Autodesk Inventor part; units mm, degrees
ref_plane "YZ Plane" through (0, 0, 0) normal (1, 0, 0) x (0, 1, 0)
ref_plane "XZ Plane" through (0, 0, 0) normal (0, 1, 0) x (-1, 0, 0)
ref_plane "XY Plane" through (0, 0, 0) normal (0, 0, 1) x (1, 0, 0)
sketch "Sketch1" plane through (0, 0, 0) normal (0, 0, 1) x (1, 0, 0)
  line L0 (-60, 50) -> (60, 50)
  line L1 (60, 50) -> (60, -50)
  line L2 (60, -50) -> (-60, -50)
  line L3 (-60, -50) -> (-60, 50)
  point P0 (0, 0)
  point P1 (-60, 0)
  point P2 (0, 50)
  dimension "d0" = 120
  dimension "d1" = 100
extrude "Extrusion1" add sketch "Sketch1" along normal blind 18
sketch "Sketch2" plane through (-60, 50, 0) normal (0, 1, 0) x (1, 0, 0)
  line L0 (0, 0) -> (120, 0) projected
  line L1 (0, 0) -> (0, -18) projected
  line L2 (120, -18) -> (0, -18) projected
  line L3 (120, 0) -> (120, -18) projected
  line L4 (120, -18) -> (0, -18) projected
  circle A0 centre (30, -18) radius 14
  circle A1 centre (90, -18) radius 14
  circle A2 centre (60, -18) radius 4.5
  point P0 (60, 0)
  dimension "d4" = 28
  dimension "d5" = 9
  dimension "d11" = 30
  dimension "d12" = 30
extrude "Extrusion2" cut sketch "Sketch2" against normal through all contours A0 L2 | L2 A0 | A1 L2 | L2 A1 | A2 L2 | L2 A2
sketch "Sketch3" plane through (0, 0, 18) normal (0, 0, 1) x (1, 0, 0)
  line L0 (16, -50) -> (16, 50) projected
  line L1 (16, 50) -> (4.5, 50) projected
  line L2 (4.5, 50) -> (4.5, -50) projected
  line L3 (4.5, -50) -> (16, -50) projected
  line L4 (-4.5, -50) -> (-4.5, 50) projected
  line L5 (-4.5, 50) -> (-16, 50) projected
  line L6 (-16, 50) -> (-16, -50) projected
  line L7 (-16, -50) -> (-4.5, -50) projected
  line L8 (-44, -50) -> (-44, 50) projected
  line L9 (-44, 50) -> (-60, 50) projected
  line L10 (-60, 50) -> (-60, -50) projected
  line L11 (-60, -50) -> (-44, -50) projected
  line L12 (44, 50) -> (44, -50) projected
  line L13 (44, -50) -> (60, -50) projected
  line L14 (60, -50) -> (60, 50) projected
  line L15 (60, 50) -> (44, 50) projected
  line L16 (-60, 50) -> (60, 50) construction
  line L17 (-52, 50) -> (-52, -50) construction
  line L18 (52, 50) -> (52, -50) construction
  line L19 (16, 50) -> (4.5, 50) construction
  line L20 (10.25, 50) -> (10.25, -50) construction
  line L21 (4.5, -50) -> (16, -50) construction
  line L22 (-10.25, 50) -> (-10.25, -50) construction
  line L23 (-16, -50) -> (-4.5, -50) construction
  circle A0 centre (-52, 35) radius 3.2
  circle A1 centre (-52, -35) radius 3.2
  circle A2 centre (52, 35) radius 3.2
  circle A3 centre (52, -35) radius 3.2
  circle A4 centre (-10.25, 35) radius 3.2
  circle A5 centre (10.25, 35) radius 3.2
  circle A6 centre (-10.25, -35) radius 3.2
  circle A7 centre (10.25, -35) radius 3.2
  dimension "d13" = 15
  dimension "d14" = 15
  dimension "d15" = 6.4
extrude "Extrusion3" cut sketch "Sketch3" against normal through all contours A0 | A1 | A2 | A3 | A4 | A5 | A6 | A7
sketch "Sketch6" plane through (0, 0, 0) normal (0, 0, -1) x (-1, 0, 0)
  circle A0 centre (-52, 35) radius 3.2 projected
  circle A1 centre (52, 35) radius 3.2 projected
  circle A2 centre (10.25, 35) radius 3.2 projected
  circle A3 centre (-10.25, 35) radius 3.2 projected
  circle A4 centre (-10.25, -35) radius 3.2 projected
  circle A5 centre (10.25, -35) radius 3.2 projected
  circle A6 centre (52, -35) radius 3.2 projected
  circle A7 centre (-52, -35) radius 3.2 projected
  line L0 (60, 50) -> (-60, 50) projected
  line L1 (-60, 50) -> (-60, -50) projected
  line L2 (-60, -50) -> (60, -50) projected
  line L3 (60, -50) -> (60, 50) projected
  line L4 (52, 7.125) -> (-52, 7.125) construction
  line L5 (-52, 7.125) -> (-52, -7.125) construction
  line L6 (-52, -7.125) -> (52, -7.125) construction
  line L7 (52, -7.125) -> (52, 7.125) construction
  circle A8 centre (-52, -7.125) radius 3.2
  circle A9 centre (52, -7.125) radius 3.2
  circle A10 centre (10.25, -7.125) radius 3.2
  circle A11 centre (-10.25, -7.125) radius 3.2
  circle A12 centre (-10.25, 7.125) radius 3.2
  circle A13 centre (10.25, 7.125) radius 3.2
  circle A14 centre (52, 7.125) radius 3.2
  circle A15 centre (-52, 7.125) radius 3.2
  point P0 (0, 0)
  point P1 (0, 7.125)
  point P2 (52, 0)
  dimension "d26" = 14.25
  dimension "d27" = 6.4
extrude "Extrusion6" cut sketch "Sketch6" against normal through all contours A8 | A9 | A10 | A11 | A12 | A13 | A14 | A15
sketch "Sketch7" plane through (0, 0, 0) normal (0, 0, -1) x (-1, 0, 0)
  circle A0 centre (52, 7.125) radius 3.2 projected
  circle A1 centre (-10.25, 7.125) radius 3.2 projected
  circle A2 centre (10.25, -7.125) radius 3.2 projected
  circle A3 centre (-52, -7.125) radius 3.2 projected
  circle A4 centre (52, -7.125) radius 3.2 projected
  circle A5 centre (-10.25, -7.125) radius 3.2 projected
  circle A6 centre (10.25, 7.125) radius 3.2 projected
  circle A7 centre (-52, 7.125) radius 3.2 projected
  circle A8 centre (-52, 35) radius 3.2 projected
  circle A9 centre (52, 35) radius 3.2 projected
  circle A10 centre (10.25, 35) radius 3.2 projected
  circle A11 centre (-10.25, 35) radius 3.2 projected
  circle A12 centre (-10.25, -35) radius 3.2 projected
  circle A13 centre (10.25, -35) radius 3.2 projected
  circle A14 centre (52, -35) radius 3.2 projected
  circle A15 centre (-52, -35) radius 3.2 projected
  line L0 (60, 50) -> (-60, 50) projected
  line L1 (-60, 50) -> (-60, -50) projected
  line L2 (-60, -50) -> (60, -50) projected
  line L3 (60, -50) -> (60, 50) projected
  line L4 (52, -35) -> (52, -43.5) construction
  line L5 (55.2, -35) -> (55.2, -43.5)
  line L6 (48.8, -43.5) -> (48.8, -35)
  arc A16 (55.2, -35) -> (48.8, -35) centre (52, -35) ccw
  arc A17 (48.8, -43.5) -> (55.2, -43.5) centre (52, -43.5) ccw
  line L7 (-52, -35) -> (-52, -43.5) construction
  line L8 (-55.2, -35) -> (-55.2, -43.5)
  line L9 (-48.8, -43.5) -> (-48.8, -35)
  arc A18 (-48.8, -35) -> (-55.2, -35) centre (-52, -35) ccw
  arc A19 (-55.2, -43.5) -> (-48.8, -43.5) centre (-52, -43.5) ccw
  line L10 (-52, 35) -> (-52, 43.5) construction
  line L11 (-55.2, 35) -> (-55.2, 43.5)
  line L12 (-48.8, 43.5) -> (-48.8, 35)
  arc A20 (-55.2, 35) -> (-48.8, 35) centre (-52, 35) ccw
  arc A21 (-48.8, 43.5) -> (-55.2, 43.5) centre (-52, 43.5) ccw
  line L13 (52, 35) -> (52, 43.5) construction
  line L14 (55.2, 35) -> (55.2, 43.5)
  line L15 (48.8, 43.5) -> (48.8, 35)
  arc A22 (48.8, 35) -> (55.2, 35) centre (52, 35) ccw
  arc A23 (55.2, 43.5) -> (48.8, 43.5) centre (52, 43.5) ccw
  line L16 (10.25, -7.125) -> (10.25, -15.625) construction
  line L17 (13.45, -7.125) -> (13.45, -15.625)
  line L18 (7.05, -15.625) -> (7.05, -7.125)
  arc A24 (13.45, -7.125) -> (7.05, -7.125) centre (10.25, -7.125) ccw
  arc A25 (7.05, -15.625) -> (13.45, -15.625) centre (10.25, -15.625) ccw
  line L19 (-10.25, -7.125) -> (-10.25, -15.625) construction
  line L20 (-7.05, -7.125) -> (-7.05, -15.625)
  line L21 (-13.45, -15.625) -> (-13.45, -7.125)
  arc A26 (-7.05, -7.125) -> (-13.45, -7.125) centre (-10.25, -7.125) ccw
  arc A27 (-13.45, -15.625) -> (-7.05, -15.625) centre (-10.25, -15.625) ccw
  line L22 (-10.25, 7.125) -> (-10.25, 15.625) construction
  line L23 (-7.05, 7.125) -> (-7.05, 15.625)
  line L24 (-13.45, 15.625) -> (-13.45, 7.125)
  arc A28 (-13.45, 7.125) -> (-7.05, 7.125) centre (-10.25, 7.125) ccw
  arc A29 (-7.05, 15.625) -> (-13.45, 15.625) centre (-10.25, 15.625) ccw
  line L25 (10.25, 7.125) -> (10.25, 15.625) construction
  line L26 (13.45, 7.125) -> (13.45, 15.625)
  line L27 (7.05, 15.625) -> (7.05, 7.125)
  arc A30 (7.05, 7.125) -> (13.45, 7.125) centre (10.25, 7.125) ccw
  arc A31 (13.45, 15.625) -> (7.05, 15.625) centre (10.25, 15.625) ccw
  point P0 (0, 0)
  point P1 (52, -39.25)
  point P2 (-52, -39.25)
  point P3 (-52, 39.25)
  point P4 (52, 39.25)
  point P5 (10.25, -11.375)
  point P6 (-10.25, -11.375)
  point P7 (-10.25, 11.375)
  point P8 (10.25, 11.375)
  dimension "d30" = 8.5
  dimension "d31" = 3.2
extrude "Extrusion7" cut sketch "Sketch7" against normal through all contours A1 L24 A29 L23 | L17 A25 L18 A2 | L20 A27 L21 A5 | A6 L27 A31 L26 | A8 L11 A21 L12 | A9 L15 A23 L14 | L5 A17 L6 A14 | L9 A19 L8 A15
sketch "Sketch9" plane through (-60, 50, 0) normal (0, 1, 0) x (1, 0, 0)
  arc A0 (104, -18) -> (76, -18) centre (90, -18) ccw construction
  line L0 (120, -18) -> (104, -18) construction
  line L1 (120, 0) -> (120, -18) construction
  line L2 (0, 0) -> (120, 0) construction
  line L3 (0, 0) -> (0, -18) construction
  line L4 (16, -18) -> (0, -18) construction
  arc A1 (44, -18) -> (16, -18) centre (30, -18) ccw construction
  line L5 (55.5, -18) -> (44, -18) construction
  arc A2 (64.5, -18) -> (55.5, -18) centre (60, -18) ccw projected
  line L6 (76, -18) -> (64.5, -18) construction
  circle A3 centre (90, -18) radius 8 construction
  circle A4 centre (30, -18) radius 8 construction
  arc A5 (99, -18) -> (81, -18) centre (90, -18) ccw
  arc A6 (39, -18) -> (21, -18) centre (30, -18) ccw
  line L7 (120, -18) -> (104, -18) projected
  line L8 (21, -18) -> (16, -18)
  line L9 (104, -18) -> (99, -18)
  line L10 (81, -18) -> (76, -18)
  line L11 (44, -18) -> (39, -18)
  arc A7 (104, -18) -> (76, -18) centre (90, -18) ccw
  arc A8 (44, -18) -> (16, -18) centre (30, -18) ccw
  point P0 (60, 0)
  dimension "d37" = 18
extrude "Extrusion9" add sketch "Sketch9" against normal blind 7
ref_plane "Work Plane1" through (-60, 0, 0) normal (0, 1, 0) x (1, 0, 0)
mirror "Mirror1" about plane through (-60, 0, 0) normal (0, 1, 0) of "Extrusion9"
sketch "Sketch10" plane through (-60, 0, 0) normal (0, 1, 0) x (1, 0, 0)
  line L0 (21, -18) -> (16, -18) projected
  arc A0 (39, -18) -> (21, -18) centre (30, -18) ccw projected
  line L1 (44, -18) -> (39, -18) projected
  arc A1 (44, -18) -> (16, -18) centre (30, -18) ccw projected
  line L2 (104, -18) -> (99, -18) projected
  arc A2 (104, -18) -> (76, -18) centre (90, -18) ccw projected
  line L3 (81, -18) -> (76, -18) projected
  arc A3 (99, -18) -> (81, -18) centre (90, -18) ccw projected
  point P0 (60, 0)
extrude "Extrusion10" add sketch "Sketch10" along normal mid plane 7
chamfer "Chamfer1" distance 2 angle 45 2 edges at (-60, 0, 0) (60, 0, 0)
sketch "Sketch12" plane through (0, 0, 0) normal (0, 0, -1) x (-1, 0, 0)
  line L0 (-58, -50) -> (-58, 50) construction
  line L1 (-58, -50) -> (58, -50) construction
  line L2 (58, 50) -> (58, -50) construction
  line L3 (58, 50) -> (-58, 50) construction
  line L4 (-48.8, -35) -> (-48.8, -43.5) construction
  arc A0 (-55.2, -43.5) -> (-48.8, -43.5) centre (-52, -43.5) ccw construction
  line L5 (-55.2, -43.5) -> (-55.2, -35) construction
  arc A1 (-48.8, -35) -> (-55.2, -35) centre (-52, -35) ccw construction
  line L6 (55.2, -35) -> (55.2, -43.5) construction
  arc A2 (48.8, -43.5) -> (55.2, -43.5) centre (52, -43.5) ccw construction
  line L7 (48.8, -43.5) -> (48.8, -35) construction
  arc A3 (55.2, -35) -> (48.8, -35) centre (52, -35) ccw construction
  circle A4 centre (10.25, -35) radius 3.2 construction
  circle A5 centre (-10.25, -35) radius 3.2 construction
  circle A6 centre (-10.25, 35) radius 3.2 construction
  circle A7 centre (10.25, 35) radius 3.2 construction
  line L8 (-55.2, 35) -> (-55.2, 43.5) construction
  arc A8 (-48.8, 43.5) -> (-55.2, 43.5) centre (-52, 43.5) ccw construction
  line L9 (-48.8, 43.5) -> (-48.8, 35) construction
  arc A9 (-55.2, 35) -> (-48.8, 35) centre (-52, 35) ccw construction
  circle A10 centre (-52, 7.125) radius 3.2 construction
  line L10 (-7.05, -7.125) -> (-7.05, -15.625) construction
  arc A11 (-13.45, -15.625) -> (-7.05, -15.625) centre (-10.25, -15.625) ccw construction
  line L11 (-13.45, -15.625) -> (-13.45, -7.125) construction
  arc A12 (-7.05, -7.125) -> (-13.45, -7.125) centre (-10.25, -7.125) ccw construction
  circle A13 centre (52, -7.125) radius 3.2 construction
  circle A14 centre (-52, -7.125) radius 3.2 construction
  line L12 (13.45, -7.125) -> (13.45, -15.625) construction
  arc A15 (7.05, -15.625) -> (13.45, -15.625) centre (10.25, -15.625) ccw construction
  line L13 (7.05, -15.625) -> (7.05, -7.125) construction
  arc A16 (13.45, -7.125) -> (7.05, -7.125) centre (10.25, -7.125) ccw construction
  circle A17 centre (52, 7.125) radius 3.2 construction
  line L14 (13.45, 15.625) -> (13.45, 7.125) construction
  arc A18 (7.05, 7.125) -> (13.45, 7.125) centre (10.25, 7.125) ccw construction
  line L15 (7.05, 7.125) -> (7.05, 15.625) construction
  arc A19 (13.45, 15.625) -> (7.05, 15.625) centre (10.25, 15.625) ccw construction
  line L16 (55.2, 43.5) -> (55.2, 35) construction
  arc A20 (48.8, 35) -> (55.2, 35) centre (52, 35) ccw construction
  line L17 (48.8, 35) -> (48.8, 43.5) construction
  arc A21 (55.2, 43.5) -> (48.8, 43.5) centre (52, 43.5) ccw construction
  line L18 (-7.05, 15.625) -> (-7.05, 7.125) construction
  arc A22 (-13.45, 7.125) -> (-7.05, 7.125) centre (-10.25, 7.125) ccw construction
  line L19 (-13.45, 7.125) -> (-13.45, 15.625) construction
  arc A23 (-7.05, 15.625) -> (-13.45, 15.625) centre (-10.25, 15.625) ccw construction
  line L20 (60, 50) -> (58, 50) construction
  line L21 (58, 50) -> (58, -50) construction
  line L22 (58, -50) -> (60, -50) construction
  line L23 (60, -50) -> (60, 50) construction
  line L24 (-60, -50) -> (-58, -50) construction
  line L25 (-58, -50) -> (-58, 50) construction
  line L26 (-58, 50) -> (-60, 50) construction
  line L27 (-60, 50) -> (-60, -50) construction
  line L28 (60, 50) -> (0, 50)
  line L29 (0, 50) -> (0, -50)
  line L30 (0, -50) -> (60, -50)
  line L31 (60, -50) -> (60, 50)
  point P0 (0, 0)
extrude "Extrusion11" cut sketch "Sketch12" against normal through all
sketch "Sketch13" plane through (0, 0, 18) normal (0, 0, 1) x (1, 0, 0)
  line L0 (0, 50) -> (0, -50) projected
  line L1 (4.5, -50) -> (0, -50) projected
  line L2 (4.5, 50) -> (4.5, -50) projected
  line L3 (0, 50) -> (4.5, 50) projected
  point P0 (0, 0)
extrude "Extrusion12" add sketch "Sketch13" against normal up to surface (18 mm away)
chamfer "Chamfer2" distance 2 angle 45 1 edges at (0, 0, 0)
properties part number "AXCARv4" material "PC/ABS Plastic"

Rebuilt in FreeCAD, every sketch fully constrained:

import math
import FreeCAD as App
import Part
import Sketcher


def edges_at(feature, points):
    """Names of the edges that pass closest to the given points."""
    edges = feature.Shape.Edges
    near = lambda p: min(range(len(edges)), key=lambda i: edges[i].distToShape(Part.Vertex(*p))[0])
    return sorted({f"Edge{near(p) + 1}" for p in points})


def add_polygon(sketch, points):
    """Adds a closed chain of lines whose ends are joined by coincident constraints."""
    first, n = sketch.GeometryCount, len(points)
    for a, b in zip(points, points[1:] + points[:1]):
        sketch.addGeometry(Part.LineSegment(App.Vector(*a, 0), App.Vector(*b, 0)), False)
    for i in range(n):
        sketch.addConstraint(Sketcher.Constraint("Coincident", first + i, 2, first + (i + 1) % n, 1))

doc = App.newDocument("Part")
body = doc.addObject("PartDesign::Body", "Body")

# Sketch on XY plane
sketch1 = body.newObject("Sketcher::SketchObject", "Sketch")
sketch1.AttachmentSupport = (doc.getObject("XY_Plane"), [""])
sketch1.MapMode = "FlatFace"
add_polygon(sketch1, [(60, 50), (-60, 50), (-60, -50), (60, -50)])  # lines 0-3
sketch1.addConstraint(Sketcher.Constraint("Horizontal", 0))
sketch1.addConstraint(Sketcher.Constraint("Vertical", 1))
sketch1.addConstraint(Sketcher.Constraint("Horizontal", 2))
sketch1.addConstraint(Sketcher.Constraint("Vertical", 3))
sketch1.addConstraint(Sketcher.Constraint("Symmetric", 0, 2, 2, 2, -1, 1))
sketch1.addConstraint(Sketcher.Constraint("DistanceX", 0, 2, 0, 1, 120.0))
sketch1.addConstraint(Sketcher.Constraint("DistanceY", 1, 2, 1, 1, 100.0))
pad1 = body.newObject("PartDesign::Pad", "Pad")
pad1.Profile = sketch1
pad1.Length = 18

# Sketch on XZ plane
sketch2 = body.newObject("Sketcher::SketchObject", "Sketch001")
sketch2.AttachmentSupport = (doc.getObject("XZ_Plane"), [""])
sketch2.MapMode = "FlatFace"
sketch2.AttachmentOffset = App.Placement(App.Vector(0, 0, -50), App.Rotation())
sketch2.addGeometry(Part.Circle(App.Vector(-30, 18, 0), App.Vector(0, 0, 1), 14), False)
sketch2.addGeometry(Part.Circle(App.Vector(30, 18, 0), App.Vector(0, 0, 1), 14), False)
sketch2.addGeometry(Part.Circle(App.Vector(0, 18, 0), App.Vector(0, 0, 1), 4.5), False)
sketch2.addConstraint(Sketcher.Constraint("Equal", 0, 1))
sketch2.addConstraint(Sketcher.Constraint("Symmetric", 0, 3, 1, 3, -2))
sketch2.addConstraint(Sketcher.Constraint("PointOnObject", 2, 3, -2))
sketch2.addConstraint(Sketcher.Constraint("Horizontal", 1, 3, 2, 3))
sketch2.addConstraint(Sketcher.Constraint("Diameter", 0, 28.0))
sketch2.addConstraint(Sketcher.Constraint("Diameter", 2, 9.0))
sketch2.addConstraint(Sketcher.Constraint("DistanceX", 0, 3, -1, 1, 30.0))
sketch2.addConstraint(Sketcher.Constraint("DistanceY", -1, 1, 0, 3, 18.0))
pocket1 = body.newObject("PartDesign::Pocket", "Pocket")
pocket1.Profile = sketch2
pocket1.Type = "ThroughAll"
pocket1.Reversed = True

# Sketch on XY plane
sketch3 = body.newObject("Sketcher::SketchObject", "Sketch002")
sketch3.AttachmentSupport = (doc.getObject("XY_Plane"), [""])
sketch3.MapMode = "FlatFace"
sketch3.AttachmentOffset = App.Placement(App.Vector(0, 0, 18), App.Rotation())
sketch3.addGeometry(Part.Circle(App.Vector(-52, 35, 0), App.Vector(0, 0, 1), 3.2), False)
sketch3.addGeometry(Part.Circle(App.Vector(-52, -35, 0), App.Vector(0, 0, 1), 3.2), False)
sketch3.addGeometry(Part.Circle(App.Vector(52, 35, 0), App.Vector(0, 0, 1), 3.2), False)
sketch3.addGeometry(Part.Circle(App.Vector(52, -35, 0), App.Vector(0, 0, 1), 3.2), False)
sketch3.addGeometry(Part.Circle(App.Vector(-10.2, 35, 0), App.Vector(0, 0, 1), 3.2), False)
sketch3.addGeometry(Part.Circle(App.Vector(10.2, 35, 0), App.Vector(0, 0, 1), 3.2), False)
sketch3.addGeometry(Part.Circle(App.Vector(-10.2, -35, 0), App.Vector(0, 0, 1), 3.2), False)
sketch3.addGeometry(Part.Circle(App.Vector(10.2, -35, 0), App.Vector(0, 0, 1), 3.2), False)
sketch3.addConstraint(Sketcher.Constraint("Equal", 0, 1))
sketch3.addConstraint(Sketcher.Constraint("Equal", 1, 2))
sketch3.addConstraint(Sketcher.Constraint("Equal", 2, 3))
sketch3.addConstraint(Sketcher.Constraint("Equal", 3, 4))
sketch3.addConstraint(Sketcher.Constraint("Equal", 4, 5))
sketch3.addConstraint(Sketcher.Constraint("Equal", 5, 6))
sketch3.addConstraint(Sketcher.Constraint("Equal", 6, 7))
sketch3.addConstraint(Sketcher.Constraint("Symmetric", 1, 3, 2, 3, -1, 1))
sketch3.addConstraint(Sketcher.Constraint("Symmetric", 0, 3, 3, 3, -1, 1))
sketch3.addConstraint(Sketcher.Constraint("Symmetric", 5, 3, 6, 3, -1, 1))
sketch3.addConstraint(Sketcher.Constraint("Symmetric", 4, 3, 7, 3, -1, 1))
sketch3.addConstraint(Sketcher.Constraint("Symmetric", 0, 3, 2, 3, -2))
sketch3.addConstraint(Sketcher.Constraint("Symmetric", 4, 3, 5, 3, -2))
sketch3.addConstraint(Sketcher.Constraint("Horizontal", 2, 3, 4, 3))
sketch3.addConstraint(Sketcher.Constraint("Diameter", 0, 6.4))
sketch3.addConstraint(Sketcher.Constraint("DistanceX", 0, 3, -1, 1, 52.0))
sketch3.addConstraint(Sketcher.Constraint("DistanceY", -1, 1, 0, 3, 35.0))
sketch3.addConstraint(Sketcher.Constraint("DistanceX", 4, 3, 5, 3, 20.5))
pocket2 = body.newObject("PartDesign::Pocket", "Pocket001")
pocket2.Profile = sketch3
pocket2.Type = "ThroughAll"

# Sketch on XY plane
sketch4 = body.newObject("Sketcher::SketchObject", "Sketch003")
sketch4.AttachmentSupport = (doc.getObject("XY_Plane"), [""])
sketch4.MapMode = "FlatFace"
sketch4.addGeometry(Part.Circle(App.Vector(52, -7.1, 0), App.Vector(0, 0, 1), 3.2), False)
sketch4.addGeometry(Part.Circle(App.Vector(-52, -7.1, 0), App.Vector(0, 0, 1), 3.2), False)
sketch4.addGeometry(Part.Circle(App.Vector(-10.2, -7.1, 0), App.Vector(0, 0, 1), 3.2), False)
sketch4.addGeometry(Part.Circle(App.Vector(10.2, -7.1, 0), App.Vector(0, 0, 1), 3.2), False)
sketch4.addGeometry(Part.Circle(App.Vector(10.2, 7.1, 0), App.Vector(0, 0, 1), 3.2), False)
sketch4.addGeometry(Part.Circle(App.Vector(-10.2, 7.1, 0), App.Vector(0, 0, 1), 3.2), False)
sketch4.addGeometry(Part.Circle(App.Vector(-52, 7.1, 0), App.Vector(0, 0, 1), 3.2), False)
sketch4.addGeometry(Part.Circle(App.Vector(52, 7.1, 0), App.Vector(0, 0, 1), 3.2), False)
sketch4.addConstraint(Sketcher.Constraint("Equal", 0, 1))
sketch4.addConstraint(Sketcher.Constraint("Equal", 1, 2))
sketch4.addConstraint(Sketcher.Constraint("Equal", 2, 3))
sketch4.addConstraint(Sketcher.Constraint("Equal", 3, 4))
sketch4.addConstraint(Sketcher.Constraint("Equal", 4, 5))
sketch4.addConstraint(Sketcher.Constraint("Equal", 5, 6))
sketch4.addConstraint(Sketcher.Constraint("Equal", 6, 7))
sketch4.addConstraint(Sketcher.Constraint("Symmetric", 2, 3, 4, 3, -1, 1))
sketch4.addConstraint(Sketcher.Constraint("Symmetric", 3, 3, 5, 3, -1, 1))
sketch4.addConstraint(Sketcher.Constraint("Symmetric", 0, 3, 6, 3, -1, 1))
sketch4.addConstraint(Sketcher.Constraint("Symmetric", 1, 3, 7, 3, -1, 1))
sketch4.addConstraint(Sketcher.Constraint("Symmetric", 0, 3, 1, 3, -2))
sketch4.addConstraint(Sketcher.Constraint("Symmetric", 2, 3, 3, 3, -2))
sketch4.addConstraint(Sketcher.Constraint("Horizontal", 1, 3, 2, 3))
sketch4.addConstraint(Sketcher.Constraint("Diameter", 0, 6.4))
sketch4.addConstraint(Sketcher.Constraint("DistanceY", 3, 3, 4, 3, 14.25))
sketch4.addConstraint(Sketcher.Constraint("DistanceX", -1, 1, 0, 3, 52.0))
sketch4.addConstraint(Sketcher.Constraint("DistanceX", 2, 3, 3, 3, 20.5))
pocket3 = body.newObject("PartDesign::Pocket", "Pocket002")
pocket3.Profile = sketch4
pocket3.Type = "ThroughAll"
pocket3.Reversed = True

# Sketch on XY plane
sketch5 = body.newObject("Sketcher::SketchObject", "Sketch004")
sketch5.AttachmentSupport = (doc.getObject("XY_Plane"), [""])
sketch5.MapMode = "FlatFace"
sketch5.addGeometry(Part.ArcOfCircle(Part.Circle(App.Vector(10.2, 7.1, 0), App.Vector(0, 0, 1), 3.2), math.radians(0), math.radians(180)), False)
sketch5.addGeometry(Part.LineSegment(App.Vector(7, 7.1, 0), App.Vector(7, 15.6, 0)), False)
sketch5.addGeometry(Part.ArcOfCircle(Part.Circle(App.Vector(10.2, 15.6, 0), App.Vector(0, 0, 1), 3.2), math.radians(0), math.radians(180)), False)
sketch5.addGeometry(Part.LineSegment(App.Vector(13.4, 15.6, 0), App.Vector(13.4, 7.1, 0)), False)
sketch5.addGeometry(Part.LineSegment(App.Vector(-13.4, -15.6, 0), App.Vector(-13.4, -7.1, 0)), False)
sketch5.addGeometry(Part.ArcOfCircle(Part.Circle(App.Vector(-10.2, -7.1, 0), App.Vector(0, 0, 1), 3.2), math.radians(180), math.radians(360)), False)
sketch5.addGeometry(Part.LineSegment(App.Vector(-7, -7.1, 0), App.Vector(-7, -15.6, 0)), False)
sketch5.addGeometry(Part.ArcOfCircle(Part.Circle(App.Vector(-10.2, -15.6, 0), App.Vector(0, 0, 1), 3.2), math.radians(180), math.radians(360)), False)
sketch5.addGeometry(Part.LineSegment(App.Vector(7, -15.6, 0), App.Vector(7, -7.1, 0)), False)
sketch5.addGeometry(Part.ArcOfCircle(Part.Circle(App.Vector(10.2, -7.1, 0), App.Vector(0, 0, 1), 3.2), math.radians(180), math.radians(360)), False)
sketch5.addGeometry(Part.LineSegment(App.Vector(13.4, -7.1, 0), App.Vector(13.4, -15.6, 0)), False)
sketch5.addGeometry(Part.ArcOfCircle(Part.Circle(App.Vector(10.2, -15.6, 0), App.Vector(0, 0, 1), 3.2), math.radians(180), math.radians(360)), False)
sketch5.addGeometry(Part.ArcOfCircle(Part.Circle(App.Vector(-10.2, 7.1, 0), App.Vector(0, 0, 1), 3.2), math.radians(0), math.radians(180)), False)
sketch5.addGeometry(Part.LineSegment(App.Vector(-13.4, 7.1, 0), App.Vector(-13.4, 15.6, 0)), False)
sketch5.addGeometry(Part.ArcOfCircle(Part.Circle(App.Vector(-10.2, 15.6, 0), App.Vector(0, 0, 1), 3.2), math.radians(0), math.radians(180)), False)
sketch5.addGeometry(Part.LineSegment(App.Vector(-7, 15.6, 0), App.Vector(-7, 7.1, 0)), False)
sketch5.addGeometry(Part.ArcOfCircle(Part.Circle(App.Vector(52, 35, 0), App.Vector(0, 0, 1), 3.2), math.radians(0), math.radians(180)), False)
sketch5.addGeometry(Part.LineSegment(App.Vector(48.8, 35, 0), App.Vector(48.8, 43.5, 0)), False)
sketch5.addGeometry(Part.ArcOfCircle(Part.Circle(App.Vector(52, 43.5, 0), App.Vector(0, 0, 1), 3.2), math.radians(0), math.radians(180)), False)
sketch5.addGeometry(Part.LineSegment(App.Vector(55.2, 43.5, 0), App.Vector(55.2, 35, 0)), False)
sketch5.addGeometry(Part.ArcOfCircle(Part.Circle(App.Vector(-52, 35, 0), App.Vector(0, 0, 1), 3.2), math.radians(0), math.radians(180)), False)
sketch5.addGeometry(Part.LineSegment(App.Vector(-55.2, 35, 0), App.Vector(-55.2, 43.5, 0)), False)
sketch5.addGeometry(Part.ArcOfCircle(Part.Circle(App.Vector(-52, 43.5, 0), App.Vector(0, 0, 1), 3.2), math.radians(0), math.radians(180)), False)
sketch5.addGeometry(Part.LineSegment(App.Vector(-48.8, 43.5, 0), App.Vector(-48.8, 35, 0)), False)
sketch5.addGeometry(Part.LineSegment(App.Vector(-55.2, -43.5, 0), App.Vector(-55.2, -35, 0)), False)
sketch5.addGeometry(Part.ArcOfCircle(Part.Circle(App.Vector(-52, -35, 0), App.Vector(0, 0, 1), 3.2), math.radians(180), math.radians(360)), False)
sketch5.addGeometry(Part.LineSegment(App.Vector(-48.8, -35, 0), App.Vector(-48.8, -43.5, 0)), False)
sketch5.addGeometry(Part.ArcOfCircle(Part.Circle(App.Vector(-52, -43.5, 0), App.Vector(0, 0, 1), 3.2), math.radians(180), math.radians(360)), False)
sketch5.addGeometry(Part.LineSegment(App.Vector(48.8, -43.5, 0), App.Vector(48.8, -35, 0)), False)
sketch5.addGeometry(Part.ArcOfCircle(Part.Circle(App.Vector(52, -35, 0), App.Vector(0, 0, 1), 3.2), math.radians(180), math.radians(360)), False)
sketch5.addGeometry(Part.LineSegment(App.Vector(55.2, -35, 0), App.Vector(55.2, -43.5, 0)), False)
sketch5.addGeometry(Part.ArcOfCircle(Part.Circle(App.Vector(52, -43.5, 0), App.Vector(0, 0, 1), 3.2), math.radians(180), math.radians(360)), False)
sketch5.addConstraint(Sketcher.Constraint("Tangent", 0, 2, 1, 1))
sketch5.addConstraint(Sketcher.Constraint("Tangent", 1, 2, 2, 2))
sketch5.addConstraint(Sketcher.Constraint("Tangent", 2, 1, 3, 1))
sketch5.addConstraint(Sketcher.Constraint("Tangent", 3, 2, 0, 1))
sketch5.addConstraint(Sketcher.Constraint("Tangent", 4, 2, 5, 1))
sketch5.addConstraint(Sketcher.Constraint("Tangent", 5, 2, 6, 1))
sketch5.addConstraint(Sketcher.Constraint("Tangent", 6, 2, 7, 2))
sketch5.addConstraint(Sketcher.Constraint("Tangent", 7, 1, 4, 1))
sketch5.addConstraint(Sketcher.Constraint("Tangent", 8, 2, 9, 1))
sketch5.addConstraint(Sketcher.Constraint("Tangent", 9, 2, 10, 1))
sketch5.addConstraint(Sketcher.Constraint("Tangent", 10, 2, 11, 2))
sketch5.addConstraint(Sketcher.Constraint("Tangent", 11, 1, 8, 1))
sketch5.addConstraint(Sketcher.Constraint("Tangent", 12, 2, 13, 1))
sketch5.addConstraint(Sketcher.Constraint("Tangent", 13, 2, 14, 2))
sketch5.addConstraint(Sketcher.Constraint("Tangent", 14, 1, 15, 1))
sketch5.addConstraint(Sketcher.Constraint("Tangent", 15, 2, 12, 1))
sketch5.addConstraint(Sketcher.Constraint("Tangent", 16, 2, 17, 1))
sketch5.addConstraint(Sketcher.Constraint("Tangent", 17, 2, 18, 2))
sketch5.addConstraint(Sketcher.Constraint("Tangent", 18, 1, 19, 1))
sketch5.addConstraint(Sketcher.Constraint("Tangent", 19, 2, 16, 1))
sketch5.addConstraint(Sketcher.Constraint("Tangent", 20, 2, 21, 1))
sketch5.addConstraint(Sketcher.Constraint("Tangent", 21, 2, 22, 2))
sketch5.addConstraint(Sketcher.Constraint("Tangent", 22, 1, 23, 1))
sketch5.addConstraint(Sketcher.Constraint("Tangent", 23, 2, 20, 1))
sketch5.addConstraint(Sketcher.Constraint("Tangent", 24, 2, 25, 1))
sketch5.addConstraint(Sketcher.Constraint("Tangent", 25, 2, 26, 1))
sketch5.addConstraint(Sketcher.Constraint("Tangent", 26, 2, 27, 2))
sketch5.addConstraint(Sketcher.Constraint("Tangent", 27, 1, 24, 1))
sketch5.addConstraint(Sketcher.Constraint("Tangent", 28, 2, 29, 1))
sketch5.addConstraint(Sketcher.Constraint("Tangent", 29, 2, 30, 1))
sketch5.addConstraint(Sketcher.Constraint("Tangent", 30, 2, 31, 2))
sketch5.addConstraint(Sketcher.Constraint("Tangent", 31, 1, 28, 1))
sketch5.addConstraint(Sketcher.Constraint("Vertical", 1))
sketch5.addConstraint(Sketcher.Constraint("Vertical", 3))
sketch5.addConstraint(Sketcher.Constraint("Vertical", 4))
sketch5.addConstraint(Sketcher.Constraint("Vertical", 6))
sketch5.addConstraint(Sketcher.Constraint("Vertical", 8))
sketch5.addConstraint(Sketcher.Constraint("Vertical", 10))
sketch5.addConstraint(Sketcher.Constraint("Vertical", 13))
sketch5.addConstraint(Sketcher.Constraint("Vertical", 15))
sketch5.addConstraint(Sketcher.Constraint("Vertical", 17))
sketch5.addConstraint(Sketcher.Constraint("Vertical", 19))
sketch5.addConstraint(Sketcher.Constraint("Vertical", 21))
sketch5.addConstraint(Sketcher.Constraint("Vertical", 23))
sketch5.addConstraint(Sketcher.Constraint("Vertical", 24))
sketch5.addConstraint(Sketcher.Constraint("Vertical", 26))
sketch5.addConstraint(Sketcher.Constraint("Vertical", 28))
sketch5.addConstraint(Sketcher.Constraint("Vertical", 30))
sketch5.addConstraint(Sketcher.Constraint("Equal", 2, 5))
sketch5.addConstraint(Sketcher.Constraint("Equal", 7, 9))
sketch5.addConstraint(Sketcher.Constraint("Equal", 11, 12))
sketch5.addConstraint(Sketcher.Constraint("Equal", 14, 16))
sketch5.addConstraint(Sketcher.Constraint("Equal", 18, 20))
sketch5.addConstraint(Sketcher.Constraint("Equal", 22, 25))
sketch5.addConstraint(Sketcher.Constraint("Equal", 27, 29))
sketch5.addConstraint(Sketcher.Constraint("Symmetric", 0, 3, 5, 3, -1, 1))
sketch5.addConstraint(Sketcher.Constraint("Symmetric", 9, 3, 12, 3, -1, 1))
sketch5.addConstraint(Sketcher.Constraint("Symmetric", 16, 3, 25, 3, -1, 1))
sketch5.addConstraint(Sketcher.Constraint("Symmetric", 20, 3, 29, 3, -1, 1))
sketch5.addConstraint(Sketcher.Constraint("Symmetric", 5, 3, 9, 3, -2))
sketch5.addConstraint(Sketcher.Constraint("Symmetric", 16, 3, 20, 3, -2))
sketch5.addConstraint(Sketcher.Constraint("Horizontal", 7, 3, 11, 3))
sketch5.addConstraint(Sketcher.Constraint("Horizontal", 2, 3, 14, 3))
sketch5.addConstraint(Sketcher.Constraint("Horizontal", 18, 3, 22, 3))
sketch5.addConstraint(Sketcher.Constraint("Horizontal", 27, 3, 31, 3))
sketch5.addConstraint(Sketcher.Constraint("Equal", 3, 4))
sketch5.addConstraint(Sketcher.Constraint("Equal", 15, 17))
sketch5.addConstraint(Sketcher.Constraint("Equal", 23, 24))
sketch5.addConstraint(Sketcher.Constraint("Radius", 0, 3.2))
sketch5.addConstraint(Sketcher.Constraint("DistanceY", 1, 1, 1, 2, 8.5))
sketch5.addConstraint(Sketcher.Constraint("DistanceX", -1, 1, 16, 3, 52.0))
sketch5.addConstraint(Sketcher.Constraint("DistanceY", -1, 1, 16, 3, 35.0))
sketch5.addConstraint(Sketcher.Constraint("DistanceX", 5, 3, 0, 3, 20.5))
sketch5.addConstraint(Sketcher.Constraint("DistanceY", 5, 3, 0, 3, 14.25))
pocket4 = body.newObject("PartDesign::Pocket", "Pocket003")
pocket4.Profile = sketch5
pocket4.Type = "ThroughAll"
pocket4.Reversed = True

# Sketch on XZ plane
sketch6 = body.newObject("Sketcher::SketchObject", "Sketch005")
sketch6.AttachmentSupport = (doc.getObject("XZ_Plane"), [""])
sketch6.MapMode = "FlatFace"
sketch6.AttachmentOffset = App.Placement(App.Vector(0, 0, -50), App.Rotation())
sketch6.addGeometry(Part.ArcOfCircle(Part.Circle(App.Vector(30, 18, 0), App.Vector(0, 0, 1), 9), math.radians(180), math.radians(360)), False)
sketch6.addGeometry(Part.LineSegment(App.Vector(39, 18, 0), App.Vector(44, 18, 0)), False)
sketch6.addGeometry(Part.ArcOfCircle(Part.Circle(App.Vector(30, 18, 0), App.Vector(0, 0, 1), 14), math.radians(180), math.radians(360)), False)
sketch6.addGeometry(Part.LineSegment(App.Vector(16, 18, 0), App.Vector(21, 18, 0)), False)
sketch6.addGeometry(Part.ArcOfCircle(Part.Circle(App.Vector(-30, 18, 0), App.Vector(0, 0, 1), 9), math.radians(180), math.radians(360)), False)
sketch6.addGeometry(Part.LineSegment(App.Vector(-21, 18, 0), App.Vector(-16, 18, 0)), False)
sketch6.addGeometry(Part.ArcOfCircle(Part.Circle(App.Vector(-30, 18, 0), App.Vector(0, 0, 1), 14), math.radians(180), math.radians(360)), False)
sketch6.addGeometry(Part.LineSegment(App.Vector(-44, 18, 0), App.Vector(-39, 18, 0)), False)
sketch6.addConstraint(Sketcher.Constraint("Coincident", 0, 2, 1, 1))
sketch6.addConstraint(Sketcher.Constraint("Coincident", 1, 2, 2, 2))
sketch6.addConstraint(Sketcher.Constraint("Coincident", 2, 1, 3, 1))
sketch6.addConstraint(Sketcher.Constraint("Coincident", 3, 2, 0, 1))
sketch6.addConstraint(Sketcher.Constraint("Coincident", 4, 2, 5, 1))
sketch6.addConstraint(Sketcher.Constraint("Coincident", 5, 2, 6, 2))
sketch6.addConstraint(Sketcher.Constraint("Coincident", 6, 1, 7, 1))
sketch6.addConstraint(Sketcher.Constraint("Coincident", 7, 2, 4, 1))
sketch6.addConstraint(Sketcher.Constraint("Horizontal", 1))
sketch6.addConstraint(Sketcher.Constraint("Horizontal", 3))
sketch6.addConstraint(Sketcher.Constraint("Horizontal", 5))
sketch6.addConstraint(Sketcher.Constraint("Horizontal", 7))
sketch6.addConstraint(Sketcher.Constraint("Coincident", 2, 3, 0, 3))
sketch6.addConstraint(Sketcher.Constraint("Coincident", 6, 3, 4, 3))
sketch6.addConstraint(Sketcher.Constraint("Equal", 0, 4))
sketch6.addConstraint(Sketcher.Constraint("Equal", 2, 6))
sketch6.addConstraint(Sketcher.Constraint("Symmetric", 0, 3, 4, 3, -2))
sketch6.addConstraint(Sketcher.Constraint("Horizontal", 6, 3, 0, 2))
sketch6.addConstraint(Sketcher.Constraint("Horizontal", 1, 2, 2, 1))
sketch6.addConstraint(Sketcher.Constraint("Horizontal", 3, 2, 4, 2))
sketch6.addConstraint(Sketcher.Constraint("Horizontal", 5, 2, 6, 1))
sketch6.addConstraint(Sketcher.Constraint("Radius", 0, 9.0))
sketch6.addConstraint(Sketcher.Constraint("DistanceY", -1, 1, 0, 3, 18.0))
sketch6.addConstraint(Sketcher.Constraint("Radius", 2, 14.0))
sketch6.addConstraint(Sketcher.Constraint("DistanceX", -1, 1, 0, 3, 30.0))
pad2 = body.newObject("PartDesign::Pad", "Pad001")
pad2.Profile = sketch6
pad2.Length = 7
doc.recompute()

mirrored = body.newObject("PartDesign::Mirrored", "Mirrored")
mirrored.Originals = [pad2]
mirrored.MirrorPlane = (doc.getObject("XZ_Plane"), [""])
body.Tip = mirrored

# Sketch on XZ plane
sketch7 = body.newObject("Sketcher::SketchObject", "Sketch006")
sketch7.AttachmentSupport = (doc.getObject("XZ_Plane"), [""])
sketch7.MapMode = "FlatFace"
sketch7.addGeometry(Part.LineSegment(App.Vector(-44, 18, 0), App.Vector(-39, 18, 0)), False)
sketch7.addGeometry(Part.ArcOfCircle(Part.Circle(App.Vector(-30, 18, 0), App.Vector(0, 0, 1), 9), math.radians(180), math.radians(360)), False)
sketch7.addGeometry(Part.LineSegment(App.Vector(-21, 18, 0), App.Vector(-16, 18, 0)), False)
sketch7.addGeometry(Part.ArcOfCircle(Part.Circle(App.Vector(-30, 18, 0), App.Vector(0, 0, 1), 14), math.radians(180), math.radians(360)), False)
sketch7.addGeometry(Part.LineSegment(App.Vector(39, 18, 0), App.Vector(44, 18, 0)), False)
sketch7.addGeometry(Part.ArcOfCircle(Part.Circle(App.Vector(30, 18, 0), App.Vector(0, 0, 1), 14), math.radians(180), math.radians(360)), False)
sketch7.addGeometry(Part.LineSegment(App.Vector(16, 18, 0), App.Vector(21, 18, 0)), False)
sketch7.addGeometry(Part.ArcOfCircle(Part.Circle(App.Vector(30, 18, 0), App.Vector(0, 0, 1), 9), math.radians(180), math.radians(360)), False)
sketch7.addConstraint(Sketcher.Constraint("Coincident", 0, 2, 1, 1))
sketch7.addConstraint(Sketcher.Constraint("Coincident", 1, 2, 2, 1))
sketch7.addConstraint(Sketcher.Constraint("Coincident", 2, 2, 3, 2))
sketch7.addConstraint(Sketcher.Constraint("Coincident", 3, 1, 0, 1))
sketch7.addConstraint(Sketcher.Constraint("Coincident", 4, 2, 5, 2))
sketch7.addConstraint(Sketcher.Constraint("Coincident", 5, 1, 6, 1))
sketch7.addConstraint(Sketcher.Constraint("Coincident", 6, 2, 7, 1))
sketch7.addConstraint(Sketcher.Constraint("Coincident", 7, 2, 4, 1))
sketch7.addConstraint(Sketcher.Constraint("Horizontal", 0))
sketch7.addConstraint(Sketcher.Constraint("Horizontal", 2))
sketch7.addConstraint(Sketcher.Constraint("Horizontal", 4))
sketch7.addConstraint(Sketcher.Constraint("Horizontal", 6))
sketch7.addConstraint(Sketcher.Constraint("Coincident", 3, 3, 1, 3))
sketch7.addConstraint(Sketcher.Constraint("Coincident", 7, 3, 5, 3))
sketch7.addConstraint(Sketcher.Constraint("Equal", 3, 5))
sketch7.addConstraint(Sketcher.Constraint("Equal", 1, 7))
sketch7.addConstraint(Sketcher.Constraint("Symmetric", 1, 3, 5, 3, -2))
sketch7.addConstraint(Sketcher.Constraint("Horizontal", 7, 3, 0, 2))
sketch7.addConstraint(Sketcher.Constraint("Horizontal", 0, 2, 1, 2))
sketch7.addConstraint(Sketcher.Constraint("Horizontal", 3, 1, 4, 2))
sketch7.addConstraint(Sketcher.Constraint("Horizontal", 4, 2, 5, 1))
sketch7.addConstraint(Sketcher.Constraint("Radius", 1, 9.0))
sketch7.addConstraint(Sketcher.Constraint("Radius", 3, 14.0))
sketch7.addConstraint(Sketcher.Constraint("DistanceX", 1, 3, -1, 1, 30.0))
sketch7.addConstraint(Sketcher.Constraint("DistanceY", -1, 1, 1, 3, 18.0))
pad3 = body.newObject("PartDesign::Pad", "Pad002")
pad3.Profile = sketch7
pad3.Length = 7
pad3.Midplane = True
doc.recompute()

chamfer = body.newObject("PartDesign::Chamfer", "Chamfer")
chamfer.Base = (pad3, edges_at(pad3, [(-60, 0, 0), (60, 0, 0)]))
chamfer.Size = 2

# Sketch on XY plane
sketch8 = body.newObject("Sketcher::SketchObject", "Sketch007")
sketch8.AttachmentSupport = (doc.getObject("XY_Plane"), [""])
sketch8.MapMode = "FlatFace"
add_polygon(sketch8, [(-60, -50), (-60, 50), (0, 50), (0, -50)])  # lines 0-3
sketch8.addConstraint(Sketcher.Constraint("Vertical", 0))
sketch8.addConstraint(Sketcher.Constraint("Horizontal", 1))
sketch8.addConstraint(Sketcher.Constraint("Vertical", 2))
sketch8.addConstraint(Sketcher.Constraint("Horizontal", 3))
sketch8.addConstraint(Sketcher.Constraint("Symmetric", 1, 2, 2, 2, -1, 1))
sketch8.addConstraint(Sketcher.Constraint("DistanceX", 1, 1, 1, 2, 60.0))
sketch8.addConstraint(Sketcher.Constraint("DistanceY", 0, 1, 0, 2, 100.0))
pocket5 = body.newObject("PartDesign::Pocket", "Pocket004")
pocket5.Profile = sketch8
pocket5.Type = "ThroughAll"
pocket5.Reversed = True

# Sketch on XY plane
sketch9 = body.newObject("Sketcher::SketchObject", "Sketch008")
sketch9.AttachmentSupport = (doc.getObject("XY_Plane"), [""])
sketch9.MapMode = "FlatFace"
sketch9.AttachmentOffset = App.Placement(App.Vector(0, 0, 18), App.Rotation())
add_polygon(sketch9, [(4.5, 50), (0, 50), (0, -50), (4.5, -50)])  # lines 0-3
sketch9.addConstraint(Sketcher.Constraint("Horizontal", 0))
sketch9.addConstraint(Sketcher.Constraint("Vertical", 1))
sketch9.addConstraint(Sketcher.Constraint("Horizontal", 2))
sketch9.addConstraint(Sketcher.Constraint("Vertical", 3))
sketch9.addConstraint(Sketcher.Constraint("Symmetric", 0, 2, 1, 2, -1, 1))
sketch9.addConstraint(Sketcher.Constraint("DistanceY", 1, 2, 1, 1, 100.0))
sketch9.addConstraint(Sketcher.Constraint("DistanceX", 0, 2, 0, 1, 4.5))
pad4 = body.newObject("PartDesign::Pad", "Pad003")
pad4.Profile = sketch9
pad4.Length = 18
pad4.Reversed = True
doc.recompute()

chamfer2 = body.newObject("PartDesign::Chamfer", "Chamfer001")
chamfer2.Base = (pad4, edges_at(pad4, [(0, 0, 0)]))
chamfer2.Size = 2

doc.recompute()
